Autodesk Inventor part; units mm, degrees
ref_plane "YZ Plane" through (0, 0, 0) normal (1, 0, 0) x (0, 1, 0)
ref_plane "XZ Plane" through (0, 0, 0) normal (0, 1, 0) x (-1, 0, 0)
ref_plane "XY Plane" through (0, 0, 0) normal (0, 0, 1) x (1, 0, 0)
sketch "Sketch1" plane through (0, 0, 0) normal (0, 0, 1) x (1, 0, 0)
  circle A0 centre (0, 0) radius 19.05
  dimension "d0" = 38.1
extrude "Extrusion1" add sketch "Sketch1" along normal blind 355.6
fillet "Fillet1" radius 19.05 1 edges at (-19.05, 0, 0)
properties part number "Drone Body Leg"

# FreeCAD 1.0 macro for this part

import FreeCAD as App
import Part
import Sketcher
Q = App.Units.Quantity


def edges_at(feature, points):
    """Names of the edges that pass closest to the given points."""
    edges = feature.Shape.Edges
    near = lambda p: min(range(len(edges)), key=lambda i: edges[i].distToShape(Part.Vertex(*p))[0])
    return sorted({f"Edge{near(p) + 1}" for p in points})

doc = App.newDocument("Part")
body = doc.addObject("PartDesign::Body", "Body")

# Sketch on XY plane
sketch1 = doc.addObject("Sketcher::SketchObject", "Sketch")
body.addObject(sketch1)
sketch1.AttachmentSupport = (doc.XY_Plane, [""])
sketch1.MapMode = "FlatFace"
sketch1.addGeometry(Part.Circle(App.Vector(0, 0, 0), App.Vector(0, 0, 1), 19), False)
sketch1.addConstraint([
    Sketcher.Constraint("Coincident", 0, 3, -1, 1),
    Sketcher.Constraint("Diameter", 0, Q("1.5 in")),
])
pad1 = doc.addObject("PartDesign::Pad", "Pad")
body.addObject(pad1)
pad1.Profile = sketch1
pad1.Length = Q("14 in")
doc.recompute()

fillet = doc.addObject("PartDesign::Fillet", "Fillet")
body.addObject(fillet)
fillet.Base = (pad1, edges_at(pad1, [(-19.05, 0, 0)]))
fillet.Radius = Q("0.75 in")

doc.recompute()
